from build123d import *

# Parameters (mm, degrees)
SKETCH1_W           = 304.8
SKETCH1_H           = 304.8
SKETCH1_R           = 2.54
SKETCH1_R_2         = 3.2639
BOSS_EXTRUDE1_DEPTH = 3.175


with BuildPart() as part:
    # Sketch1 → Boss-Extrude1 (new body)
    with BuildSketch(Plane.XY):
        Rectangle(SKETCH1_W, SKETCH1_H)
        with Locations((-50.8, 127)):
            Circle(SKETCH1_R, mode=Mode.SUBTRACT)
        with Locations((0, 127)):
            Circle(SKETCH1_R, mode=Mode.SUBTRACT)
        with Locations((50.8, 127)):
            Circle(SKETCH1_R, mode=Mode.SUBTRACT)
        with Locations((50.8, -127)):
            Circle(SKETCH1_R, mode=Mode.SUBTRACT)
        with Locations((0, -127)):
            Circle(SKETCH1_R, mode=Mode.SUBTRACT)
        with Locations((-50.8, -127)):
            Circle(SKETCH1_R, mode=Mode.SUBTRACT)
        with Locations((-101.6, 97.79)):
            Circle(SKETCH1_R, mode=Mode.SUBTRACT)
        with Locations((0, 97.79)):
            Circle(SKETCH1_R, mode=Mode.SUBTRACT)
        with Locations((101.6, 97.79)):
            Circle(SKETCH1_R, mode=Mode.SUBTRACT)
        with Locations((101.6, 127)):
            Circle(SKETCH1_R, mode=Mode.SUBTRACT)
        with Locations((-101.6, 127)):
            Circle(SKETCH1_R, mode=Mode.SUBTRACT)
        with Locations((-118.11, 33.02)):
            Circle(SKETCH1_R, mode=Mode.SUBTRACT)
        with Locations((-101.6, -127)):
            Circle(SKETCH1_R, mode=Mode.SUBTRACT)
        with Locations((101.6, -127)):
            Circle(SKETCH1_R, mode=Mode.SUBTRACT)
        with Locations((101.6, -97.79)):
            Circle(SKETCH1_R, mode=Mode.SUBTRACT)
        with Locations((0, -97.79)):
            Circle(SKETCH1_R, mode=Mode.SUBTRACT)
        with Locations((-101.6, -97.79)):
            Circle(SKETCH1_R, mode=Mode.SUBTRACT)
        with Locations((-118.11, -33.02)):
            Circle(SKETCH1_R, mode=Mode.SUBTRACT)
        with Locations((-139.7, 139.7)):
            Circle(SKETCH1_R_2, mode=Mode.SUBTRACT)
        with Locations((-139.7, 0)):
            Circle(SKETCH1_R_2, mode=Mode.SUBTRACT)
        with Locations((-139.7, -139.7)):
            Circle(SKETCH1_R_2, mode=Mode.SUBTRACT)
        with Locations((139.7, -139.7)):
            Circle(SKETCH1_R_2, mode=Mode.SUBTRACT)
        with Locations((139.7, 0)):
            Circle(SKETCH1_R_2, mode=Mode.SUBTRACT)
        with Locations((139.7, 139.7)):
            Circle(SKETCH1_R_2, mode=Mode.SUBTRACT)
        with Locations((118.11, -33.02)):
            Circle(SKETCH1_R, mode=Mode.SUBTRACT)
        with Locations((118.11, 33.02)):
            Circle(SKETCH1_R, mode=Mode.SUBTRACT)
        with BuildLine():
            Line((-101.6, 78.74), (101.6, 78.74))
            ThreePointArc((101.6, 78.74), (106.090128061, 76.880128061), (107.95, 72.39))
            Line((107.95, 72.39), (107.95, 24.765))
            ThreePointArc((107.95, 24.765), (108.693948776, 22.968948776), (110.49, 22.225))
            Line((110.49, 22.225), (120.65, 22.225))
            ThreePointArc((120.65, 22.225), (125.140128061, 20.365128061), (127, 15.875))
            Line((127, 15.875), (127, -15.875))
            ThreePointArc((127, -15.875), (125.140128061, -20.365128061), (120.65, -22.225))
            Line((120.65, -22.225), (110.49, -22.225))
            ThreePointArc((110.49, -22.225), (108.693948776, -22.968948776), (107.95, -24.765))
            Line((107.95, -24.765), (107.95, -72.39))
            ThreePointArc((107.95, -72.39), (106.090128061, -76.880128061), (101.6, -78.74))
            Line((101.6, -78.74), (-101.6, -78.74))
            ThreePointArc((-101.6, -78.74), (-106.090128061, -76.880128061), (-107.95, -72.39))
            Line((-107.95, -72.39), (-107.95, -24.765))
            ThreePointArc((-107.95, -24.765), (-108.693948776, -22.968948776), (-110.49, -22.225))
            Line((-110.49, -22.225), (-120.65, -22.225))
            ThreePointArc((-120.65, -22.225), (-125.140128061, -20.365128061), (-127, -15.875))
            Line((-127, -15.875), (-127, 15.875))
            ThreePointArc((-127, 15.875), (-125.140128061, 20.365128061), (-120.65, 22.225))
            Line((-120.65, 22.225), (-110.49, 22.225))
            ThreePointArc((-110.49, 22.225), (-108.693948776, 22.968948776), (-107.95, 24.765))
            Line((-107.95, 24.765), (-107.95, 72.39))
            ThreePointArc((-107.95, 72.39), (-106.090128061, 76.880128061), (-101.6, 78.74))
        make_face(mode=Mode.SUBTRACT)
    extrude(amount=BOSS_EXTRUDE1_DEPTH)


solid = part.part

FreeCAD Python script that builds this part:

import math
import FreeCAD as App
import Part
import Sketcher
Q = App.Units.Quantity


def add_polygon(sketch, points):
    """Adds a closed chain of lines whose ends are joined by coincident constraints."""
    first, n = sketch.GeometryCount, len(points)
    for a, b in zip(points, points[1:] + points[:1]):
        sketch.addGeometry(Part.LineSegment(App.Vector(*a, 0), App.Vector(*b, 0)), False)
    for i in range(n):
        sketch.addConstraint(Sketcher.Constraint("Coincident", first + i, 2, first + (i + 1) % n, 1))

doc = App.newDocument("Part")
body = doc.addObject("PartDesign::Body", "Body")

# Sketch on XY plane
sketch1 = doc.addObject("Sketcher::SketchObject", "Sketch")
body.addObject(sketch1)
sketch1.AttachmentSupport = (doc.XY_Plane, [""])
sketch1.MapMode = "FlatFace"
add_polygon(sketch1, [(-152.4, 152.4), (-152.4, -152.4), (152.4, -152.4), (152.4, 152.4)])  # lines 0-3
sketch1.addGeometry(Part.Circle(App.Vector(-139.7, -139.7, 0), App.Vector(0, 0, 1), 3.2639), False)  # 4
sketch1.addGeometry(Part.Circle(App.Vector(-101.6, -127, 0), App.Vector(0, 0, 1), 2.54), False)  # 5
sketch1.addGeometry(Part.Circle(App.Vector(-101.6, -97.79, 0), App.Vector(0, 0, 1), 2.54), False)  # 6
sketch1.addGeometry(Part.Circle(App.Vector(-50.8, -127, 0), App.Vector(0, 0, 1), 2.54), False)  # 7
sketch1.addGeometry(Part.Circle(App.Vector(-118.11, -33.02, 0), App.Vector(0, 0, 1), 2.54), False)  # 8
sketch1.addGeometry(Part.Circle(App.Vector(0, -127, 0), App.Vector(0, 0, 1), 2.54), False)  # 9
sketch1.addGeometry(Part.Circle(App.Vector(50.8, -127, 0), App.Vector(0, 0, 1), 2.54), False)  # 10
sketch1.addGeometry(Part.Circle(App.Vector(0, -97.79, 0), App.Vector(0, 0, 1), 2.54), False)  # 11
sketch1.addGeometry(Part.Circle(App.Vector(101.6, -127, 0), App.Vector(0, 0, 1), 2.54), False)  # 12
sketch1.addGeometry(Part.Circle(App.Vector(139.7, -139.7, 0), App.Vector(0, 0, 1), 3.2639), False)  # 13
sketch1.addGeometry(Part.Circle(App.Vector(101.6, -97.79, 0), App.Vector(0, 0, 1), 2.54), False)  # 14
sketch1.addGeometry(Part.Circle(App.Vector(118.11, -33.02, 0), App.Vector(0, 0, 1), 2.54), False)  # 15
sketch1.addGeometry(Part.Circle(App.Vector(-139.7, 0, 0), App.Vector(0, 0, 1), 3.2639), False)  # 16
sketch1.addGeometry(Part.Circle(App.Vector(-118.11, 33.02, 0), App.Vector(0, 0, 1), 2.54), False)  # 17
sketch1.addGeometry(Part.Circle(App.Vector(-101.6, 97.79, 0), App.Vector(0, 0, 1), 2.54), False)  # 18
sketch1.addGeometry(Part.Circle(App.Vector(-139.7, 139.7, 0), App.Vector(0, 0, 1), 3.2639), False)  # 19
sketch1.addGeometry(Part.Circle(App.Vector(-101.6, 127, 0), App.Vector(0, 0, 1), 2.54), False)  # 20
sketch1.addGeometry(Part.Circle(App.Vector(-50.8, 127, 0), App.Vector(0, 0, 1), 2.54), False)  # 21
sketch1.addGeometry(Part.ArcOfCircle(Part.Circle(App.Vector(-101.6, 72.39, 0), App.Vector(0, 0, 1), 6.35), math.radians(90), math.radians(180)), False)  # 22
sketch1.addGeometry(Part.LineSegment(App.Vector(-101.6, 78.74, 0), App.Vector(101.6, 78.74, 0)), False)  # 23
sketch1.addGeometry(Part.ArcOfCircle(Part.Circle(App.Vector(101.6, 72.39, 0), App.Vector(0, 0, 1), 6.35), math.radians(0), math.radians(90)), False)  # 24
sketch1.addGeometry(Part.LineSegment(App.Vector(107.95, 72.39, 0), App.Vector(107.95, 24.765, 0)), False)  # 25
sketch1.addGeometry(Part.ArcOfCircle(Part.Circle(App.Vector(110.49, 24.765, 0), App.Vector(0, 0, 1), 2.54), math.radians(-180), math.radians(-90)), False)  # 26
sketch1.addGeometry(Part.LineSegment(App.Vector(110.49, 22.225, 0), App.Vector(120.65, 22.225, 0)), False)  # 27
sketch1.addGeometry(Part.ArcOfCircle(Part.Circle(App.Vector(120.65, 15.875, 0), App.Vector(0, 0, 1), 6.35), math.radians(0), math.radians(90)), False)  # 28
sketch1.addGeometry(Part.LineSegment(App.Vector(127, 15.875, 0), App.Vector(127, -15.875, 0)), False)  # 29
sketch1.addGeometry(Part.ArcOfCircle(Part.Circle(App.Vector(120.65, -15.875, 0), App.Vector(0, 0, 1), 6.35), math.radians(-90), math.radians(0)), False)  # 30
sketch1.addGeometry(Part.LineSegment(App.Vector(120.65, -22.225, 0), App.Vector(110.49, -22.225, 0)), False)  # 31
sketch1.addGeometry(Part.ArcOfCircle(Part.Circle(App.Vector(110.49, -24.765, 0), App.Vector(0, 0, 1), 2.54), math.radians(90), math.radians(180)), False)  # 32
sketch1.addGeometry(Part.LineSegment(App.Vector(107.95, -24.765, 0), App.Vector(107.95, -72.39, 0)), False)  # 33
sketch1.addGeometry(Part.ArcOfCircle(Part.Circle(App.Vector(101.6, -72.39, 0), App.Vector(0, 0, 1), 6.35), math.radians(-90), math.radians(0)), False)  # 34
sketch1.addGeometry(Part.LineSegment(App.Vector(101.6, -78.74, 0), App.Vector(-101.6, -78.74, 0)), False)  # 35
sketch1.addGeometry(Part.ArcOfCircle(Part.Circle(App.Vector(-101.6, -72.39, 0), App.Vector(0, 0, 1), 6.35), math.radians(180), math.radians(270)), False)  # 36
sketch1.addGeometry(Part.LineSegment(App.Vector(-107.95, -72.39, 0), App.Vector(-107.95, -24.765, 0)), False)  # 37
sketch1.addGeometry(Part.ArcOfCircle(Part.Circle(App.Vector(-110.49, -24.765, 0), App.Vector(0, 0, 1), 2.54), math.radians(0), math.radians(90)), False)  # 38
sketch1.addGeometry(Part.LineSegment(App.Vector(-110.49, -22.225, 0), App.Vector(-120.65, -22.225, 0)), False)  # 39
sketch1.addGeometry(Part.ArcOfCircle(Part.Circle(App.Vector(-120.65, -15.875, 0), App.Vector(0, 0, 1), 6.35), math.radians(180), math.radians(270)), False)  # 40
sketch1.addGeometry(Part.LineSegment(App.Vector(-127, -15.875, 0), App.Vector(-127, 15.875, 0)), False)  # 41
sketch1.addGeometry(Part.ArcOfCircle(Part.Circle(App.Vector(-120.65, 15.875, 0), App.Vector(0, 0, 1), 6.35), math.radians(90), math.radians(180)), False)  # 42
sketch1.addGeometry(Part.LineSegment(App.Vector(-120.65, 22.225, 0), App.Vector(-110.49, 22.225, 0)), False)  # 43
sketch1.addGeometry(Part.ArcOfCircle(Part.Circle(App.Vector(-110.49, 24.765, 0), App.Vector(0, 0, 1), 2.54), math.radians(-90), math.radians(0)), False)  # 44
sketch1.addGeometry(Part.LineSegment(App.Vector(-107.95, 24.765, 0), App.Vector(-107.95, 72.39, 0)), False)  # 45
sketch1.addGeometry(Part.Circle(App.Vector(139.7, 0, 0), App.Vector(0, 0, 1), 3.2639), False)  # 46
sketch1.addGeometry(Part.Circle(App.Vector(118.11, 33.02, 0), App.Vector(0, 0, 1), 2.54), False)  # 47
sketch1.addGeometry(Part.Circle(App.Vector(0, 97.79, 0), App.Vector(0, 0, 1), 2.54), False)  # 48
sketch1.addGeometry(Part.Circle(App.Vector(0, 127, 0), App.Vector(0, 0, 1), 2.54), False)  # 49
sketch1.addGeometry(Part.Circle(App.Vector(50.8, 127, 0), App.Vector(0, 0, 1), 2.54), False)  # 50
sketch1.addGeometry(Part.Circle(App.Vector(101.6, 97.79, 0), App.Vector(0, 0, 1), 2.54), False)  # 51
sketch1.addGeometry(Part.Circle(App.Vector(101.6, 127, 0), App.Vector(0, 0, 1), 2.54), False)  # 52
sketch1.addGeometry(Part.Circle(App.Vector(139.7, 139.7, 0), App.Vector(0, 0, 1), 3.2639), False)  # 53
sketch1.addConstraint([
    Sketcher.Constraint("Tangent", 22, 1, 23, 1),
    Sketcher.Constraint("Tangent", 23, 2, 24, 2),
    Sketcher.Constraint("Tangent", 24, 1, 25, 1),
    Sketcher.Constraint("Tangent", 25, 2, 26, 1),
    Sketcher.Constraint("Tangent", 26, 2, 27, 1),
    Sketcher.Constraint("Tangent", 27, 2, 28, 2),
    Sketcher.Constraint("Tangent", 28, 1, 29, 1),
    Sketcher.Constraint("Tangent", 29, 2, 30, 2),
    Sketcher.Constraint("Tangent", 30, 1, 31, 1),
    Sketcher.Constraint("Tangent", 31, 2, 32, 1),
    Sketcher.Constraint("Tangent", 32, 2, 33, 1),
    Sketcher.Constraint("Tangent", 33, 2, 34, 2),
    Sketcher.Constraint("Tangent", 34, 1, 35, 1),
    Sketcher.Constraint("Tangent", 35, 2, 36, 2),
    Sketcher.Constraint("Tangent", 36, 1, 37, 1),
    Sketcher.Constraint("Tangent", 37, 2, 38, 1),
    Sketcher.Constraint("Tangent", 38, 2, 39, 1),
    Sketcher.Constraint("Tangent", 39, 2, 40, 2),
    Sketcher.Constraint("Tangent", 40, 1, 41, 1),
    Sketcher.Constraint("Tangent", 41, 2, 42, 2),
    Sketcher.Constraint("Tangent", 42, 1, 43, 1),
    Sketcher.Constraint("Tangent", 43, 2, 44, 1),
    Sketcher.Constraint("Tangent", 44, 2, 45, 1),
    Sketcher.Constraint("Tangent", 45, 2, 22, 2),
    Sketcher.Constraint("Vertical", 0),
    Sketcher.Constraint("Horizontal", 1),
    Sketcher.Constraint("Vertical", 2),
    Sketcher.Constraint("Horizontal", 3),
    Sketcher.Constraint("Horizontal", 23),
    Sketcher.Constraint("Vertical", 25),
    Sketcher.Constraint("Horizontal", 27),
    Sketcher.Constraint("Vertical", 29),
    Sketcher.Constraint("Horizontal", 31),
    Sketcher.Constraint("Vertical", 33),
    Sketcher.Constraint("Horizontal", 35),
    Sketcher.Constraint("Vertical", 37),
    Sketcher.Constraint("Horizontal", 39),
    Sketcher.Constraint("Vertical", 41),
    Sketcher.Constraint("Horizontal", 43),
    Sketcher.Constraint("Vertical", 45),
    Sketcher.Constraint("Equal", 5, 6),
    Sketcher.Constraint("Equal", 6, 7),
    Sketcher.Constraint("Equal", 7, 8),
    Sketcher.Constraint("Equal", 8, 9),
    Sketcher.Constraint("Equal", 9, 10),
    Sketcher.Constraint("Equal", 10, 11),
    Sketcher.Constraint("Equal", 11, 12),
    Sketcher.Constraint("Equal", 4, 13),
    Sketcher.Constraint("Equal", 12, 14),
    Sketcher.Constraint("Equal", 14, 15),
    Sketcher.Constraint("Equal", 13, 16),
    Sketcher.Constraint("Equal", 15, 17),
    Sketcher.Constraint("Equal", 17, 18),
    Sketcher.Constraint("Equal", 16, 19),
    Sketcher.Constraint("Equal", 18, 20),
    Sketcher.Constraint("Equal", 20, 21),
    Sketcher.Constraint("Equal", 22, 24),
    Sketcher.Constraint("Equal", 21, 26),
    Sketcher.Constraint("Equal", 24, 28),
    Sketcher.Constraint("Equal", 28, 30),
    Sketcher.Constraint("Equal", 26, 32),
    Sketcher.Constraint("Equal", 30, 34),
    Sketcher.Constraint("Equal", 34, 36),
    Sketcher.Constraint("Equal", 32, 38),
    Sketcher.Constraint("Equal", 36, 40),
    Sketcher.Constraint("Equal", 40, 42),
    Sketcher.Constraint("Equal", 38, 44),
    Sketcher.Constraint("Equal", 19, 46),
    Sketcher.Constraint("Equal", 44, 47),
    Sketcher.Constraint("Equal", 47, 48),
    Sketcher.Constraint("Equal", 48, 49),
    Sketcher.Constraint("Equal", 49, 50),
    Sketcher.Constraint("Equal", 50, 51),
    Sketcher.Constraint("Equal", 51, 52),
    Sketcher.Constraint("Equal", 46, 53),
    Sketcher.Constraint("Symmetric", 15, 3, 17, 3, -1, 1),
    Sketcher.Constraint("Symmetric", 14, 3, 18, 3, -1, 1),
    Sketcher.Constraint("Symmetric", 13, 3, 19, 3, -1, 1),
    Sketcher.Constraint("Symmetric", 12, 3, 20, 3, -1, 1),
    Sketcher.Constraint("Symmetric", 10, 3, 21, 3, -1, 1),
    Sketcher.Constraint("Symmetric", 22, 3, 34, 3, -1, 1),
    Sketcher.Constraint("Symmetric", 26, 3, 38, 3, -1, 1),
    Sketcher.Constraint("Symmetric", 30, 3, 42, 3, -1, 1),
    Sketcher.Constraint("Symmetric", 16, 3, 46, 3, -1, 1),
    Sketcher.Constraint("Symmetric", 8, 3, 47, 3, -1, 1),
    Sketcher.Constraint("Symmetric", 11, 3, 48, 3, -1, 1),
    Sketcher.Constraint("Symmetric", 9, 3, 49, 3, -1, 1),
    Sketcher.Constraint("Symmetric", 7, 3, 50, 3, -1, 1),
    Sketcher.Constraint("Symmetric", 6, 3, 51, 3, -1, 1),
    Sketcher.Constraint("Symmetric", 5, 3, 52, 3, -1, 1),
    Sketcher.Constraint("Symmetric", 4, 3, 53, 3, -1, 1),
    Sketcher.Constraint("Symmetric", 0, 2, 2, 2, -1, 1),
    Sketcher.Constraint("Symmetric", 7, 3, 10, 3, -2),
    Sketcher.Constraint("Symmetric", 5, 3, 12, 3, -2),
    Sketcher.Constraint("Symmetric", 4, 3, 13, 3, -2),
    Sketcher.Constraint("Symmetric", 6, 3, 14, 3, -2),
    Sketcher.Constraint("Symmetric", 8, 3, 15, 3, -2),
    Sketcher.Constraint("Symmetric", 32, 3, 38, 3, -2),
    Sketcher.Constraint("PointOnObject", 9, 3, -2),
    Sketcher.Constraint("PointOnObject", 11, 3, -2),
    Sketcher.Constraint("PointOnObject", 16, 3, -1),
    Sketcher.Constraint("Horizontal", 5, 3, 7, 3),
    Sketcher.Constraint("Horizontal", 7, 3, 9, 3),
    Sketcher.Constraint("Horizontal", 6, 3, 11, 3),
    Sketcher.Constraint("Vertical", 5, 3, 6, 3),
    Sketcher.Constraint("Vertical", 4, 3, 16, 3),
    Sketcher.Constraint("Vertical", 20, 3, 22, 3),
    Sketcher.Constraint("Equal", 3, 0),
    Sketcher.Constraint("Diameter", 5, Q("0.2 in")),
    Sketcher.Constraint("DistanceX", 1, 1, 1, 2, Q("12 in")),
    Sketcher.Constraint("DistanceX", 23, 1, 23, 2, Q("8 in")),
    Sketcher.Constraint("Radius", 22, Q("0.25 in")),
    Sketcher.Constraint("Diameter", 4, Q("0.257 in")),
    Sketcher.Constraint("DistanceX", 27, 1, 27, 2, Q("0.4 in")),
    Sketcher.Constraint("DistanceY", 5, 3, -1, 1, Q("5 in")),
    Sketcher.Constraint("DistanceX", 7, 3, -1, 1, Q("2 in")),
    Sketcher.Constraint("DistanceY", 29, 2, 29, 1, Q("1.25 in")),
    Sketcher.Constraint("DistanceX", 4, 3, -1, 1, Q("5.5 in")),
    Sketcher.Constraint("DistanceY", 4, 3, -1, 1, Q("5.5 in")),
    Sketcher.Constraint("DistanceY", 8, 3, -1, 1, Q("1.3 in")),
    Sketcher.Constraint("DistanceY", -1, 1, 22, 1, Q("3.1 in")),
    Sketcher.Constraint("DistanceY", 6, 3, -1, 1, Q("3.85 in")),
    Sketcher.Constraint("DistanceX", 8, 3, -1, 1, Q("4.65 in")),
])
pad1 = doc.addObject("PartDesign::Pad", "Pad")
body.addObject(pad1)
pad1.Profile = sketch1
pad1.Length = Q("0.125 in")

doc.recompute()
